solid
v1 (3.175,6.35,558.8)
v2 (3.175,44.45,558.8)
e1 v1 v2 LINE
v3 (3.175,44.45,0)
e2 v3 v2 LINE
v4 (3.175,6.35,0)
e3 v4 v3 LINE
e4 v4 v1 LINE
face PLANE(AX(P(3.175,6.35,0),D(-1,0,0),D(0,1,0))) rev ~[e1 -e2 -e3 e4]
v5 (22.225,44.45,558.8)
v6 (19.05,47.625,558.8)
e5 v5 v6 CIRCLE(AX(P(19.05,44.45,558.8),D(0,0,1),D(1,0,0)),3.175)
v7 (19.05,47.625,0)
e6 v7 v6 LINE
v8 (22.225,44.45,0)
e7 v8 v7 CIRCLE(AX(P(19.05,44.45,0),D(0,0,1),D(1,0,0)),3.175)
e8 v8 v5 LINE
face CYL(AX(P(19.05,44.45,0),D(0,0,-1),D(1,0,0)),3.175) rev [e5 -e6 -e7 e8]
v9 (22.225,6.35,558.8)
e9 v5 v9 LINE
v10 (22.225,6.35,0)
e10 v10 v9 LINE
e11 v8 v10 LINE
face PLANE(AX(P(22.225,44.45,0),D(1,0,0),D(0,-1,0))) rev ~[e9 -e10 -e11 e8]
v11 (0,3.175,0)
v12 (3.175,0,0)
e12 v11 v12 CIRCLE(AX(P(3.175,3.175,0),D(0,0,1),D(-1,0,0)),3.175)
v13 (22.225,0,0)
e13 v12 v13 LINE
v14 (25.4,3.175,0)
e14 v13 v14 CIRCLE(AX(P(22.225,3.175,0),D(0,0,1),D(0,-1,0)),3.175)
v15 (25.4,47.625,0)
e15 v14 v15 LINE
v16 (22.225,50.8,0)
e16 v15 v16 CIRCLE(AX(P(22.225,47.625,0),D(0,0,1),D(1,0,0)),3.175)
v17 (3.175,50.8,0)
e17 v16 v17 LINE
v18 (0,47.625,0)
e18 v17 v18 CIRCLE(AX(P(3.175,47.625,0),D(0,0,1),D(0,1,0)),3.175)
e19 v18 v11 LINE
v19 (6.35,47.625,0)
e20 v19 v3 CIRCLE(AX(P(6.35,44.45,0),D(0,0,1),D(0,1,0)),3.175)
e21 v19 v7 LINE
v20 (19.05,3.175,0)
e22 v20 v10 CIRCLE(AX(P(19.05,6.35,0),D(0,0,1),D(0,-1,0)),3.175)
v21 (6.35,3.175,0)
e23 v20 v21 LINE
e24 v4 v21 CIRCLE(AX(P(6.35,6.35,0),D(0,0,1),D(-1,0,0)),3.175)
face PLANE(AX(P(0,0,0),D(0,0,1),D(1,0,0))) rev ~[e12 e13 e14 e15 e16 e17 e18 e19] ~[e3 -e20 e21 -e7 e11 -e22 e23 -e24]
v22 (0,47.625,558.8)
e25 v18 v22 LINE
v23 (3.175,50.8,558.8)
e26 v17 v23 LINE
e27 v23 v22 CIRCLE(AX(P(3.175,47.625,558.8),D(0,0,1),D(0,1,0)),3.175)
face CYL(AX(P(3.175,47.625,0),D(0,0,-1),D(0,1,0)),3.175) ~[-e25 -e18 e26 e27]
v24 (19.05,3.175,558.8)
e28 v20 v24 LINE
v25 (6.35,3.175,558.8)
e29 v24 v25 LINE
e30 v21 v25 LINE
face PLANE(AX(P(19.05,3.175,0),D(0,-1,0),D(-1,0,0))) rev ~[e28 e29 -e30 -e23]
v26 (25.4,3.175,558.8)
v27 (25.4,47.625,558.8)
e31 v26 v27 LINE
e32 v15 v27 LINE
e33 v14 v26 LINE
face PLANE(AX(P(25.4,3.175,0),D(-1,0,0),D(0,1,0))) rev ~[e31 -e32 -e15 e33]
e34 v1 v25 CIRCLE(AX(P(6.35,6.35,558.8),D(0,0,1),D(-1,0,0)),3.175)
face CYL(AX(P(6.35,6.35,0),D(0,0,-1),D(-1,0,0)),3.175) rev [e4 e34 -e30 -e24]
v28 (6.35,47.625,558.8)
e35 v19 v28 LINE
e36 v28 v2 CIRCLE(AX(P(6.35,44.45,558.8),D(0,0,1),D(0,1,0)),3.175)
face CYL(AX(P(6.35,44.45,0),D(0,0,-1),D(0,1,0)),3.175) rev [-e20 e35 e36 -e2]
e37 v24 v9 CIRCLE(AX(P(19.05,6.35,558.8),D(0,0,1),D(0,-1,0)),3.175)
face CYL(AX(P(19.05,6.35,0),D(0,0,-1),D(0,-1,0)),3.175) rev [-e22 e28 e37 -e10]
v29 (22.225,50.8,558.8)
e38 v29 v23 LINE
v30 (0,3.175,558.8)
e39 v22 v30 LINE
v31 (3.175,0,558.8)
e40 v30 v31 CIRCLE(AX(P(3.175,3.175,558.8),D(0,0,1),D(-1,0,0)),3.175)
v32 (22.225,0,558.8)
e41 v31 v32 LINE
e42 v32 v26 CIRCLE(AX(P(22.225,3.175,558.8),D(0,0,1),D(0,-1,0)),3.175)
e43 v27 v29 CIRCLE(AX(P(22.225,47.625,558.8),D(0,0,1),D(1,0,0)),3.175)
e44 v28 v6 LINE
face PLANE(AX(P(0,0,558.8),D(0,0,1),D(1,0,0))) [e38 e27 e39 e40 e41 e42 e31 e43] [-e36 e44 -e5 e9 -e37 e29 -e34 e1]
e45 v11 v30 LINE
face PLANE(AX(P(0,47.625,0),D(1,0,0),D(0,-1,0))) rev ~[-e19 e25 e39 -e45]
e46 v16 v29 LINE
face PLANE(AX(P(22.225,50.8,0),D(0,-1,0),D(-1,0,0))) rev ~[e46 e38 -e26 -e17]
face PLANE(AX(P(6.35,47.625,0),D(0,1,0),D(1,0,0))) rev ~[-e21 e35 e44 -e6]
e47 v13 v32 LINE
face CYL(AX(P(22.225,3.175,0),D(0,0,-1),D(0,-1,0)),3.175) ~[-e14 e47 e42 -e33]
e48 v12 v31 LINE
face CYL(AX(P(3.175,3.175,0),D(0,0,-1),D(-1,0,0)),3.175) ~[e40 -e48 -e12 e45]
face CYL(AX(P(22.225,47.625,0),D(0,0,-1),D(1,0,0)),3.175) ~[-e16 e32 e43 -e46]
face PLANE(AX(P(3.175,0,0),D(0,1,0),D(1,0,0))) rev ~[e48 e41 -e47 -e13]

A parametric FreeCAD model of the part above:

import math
import FreeCAD as App
import Part
import Sketcher

V = App.Vector
Q = App.Units.Quantity

doc = App.newDocument("Part")
body = doc.addObject("PartDesign::Body", "Body")

sketch1 = doc.addObject("Sketcher::SketchObject", "Sketch")
body.addObject(sketch1)
sketch1.AttachmentSupport = (doc.XY_Plane, [""])
sketch1.MapMode = "FlatFace"
sketch1.addGeometry([
    Part.ArcOfCircle(Part.Circle(V(3.175, 3.175, 0), V(0, 0, 1), 3.175), math.radians(180), math.radians(270)),
    Part.LineSegment(V(3.175, 0, 0), V(22.225, 0, 0)),
    Part.ArcOfCircle(Part.Circle(V(22.225, 3.175, 0), V(0, 0, 1), 3.175), math.radians(-90), math.radians(0)),
    Part.LineSegment(V(25.4, 3.175, 0), V(25.4, 47.625, 0)),
    Part.ArcOfCircle(Part.Circle(V(22.225, 47.625, 0), V(0, 0, 1), 3.175), math.radians(0), math.radians(90)),
    Part.LineSegment(V(22.225, 50.8, 0), V(3.175, 50.8, 0)),
    Part.ArcOfCircle(Part.Circle(V(3.175, 47.625, 0), V(0, 0, 1), 3.175), math.radians(90), math.radians(180)),
    Part.LineSegment(V(0, 47.625, 0), V(0, 3.175, 0)),
    Part.ArcOfCircle(Part.Circle(V(6.35, 44.45, 0), V(0, 0, 1), 3.175), math.radians(90), math.radians(180)),
    Part.LineSegment(V(6.35, 47.625, 0), V(19.05, 47.625, 0)),
    Part.ArcOfCircle(Part.Circle(V(19.05, 44.45, 0), V(0, 0, 1), 3.175), math.radians(0), math.radians(90)),
    Part.LineSegment(V(22.225, 44.45, 0), V(22.225, 6.35, 0)),
    Part.ArcOfCircle(Part.Circle(V(19.05, 6.35, 0), V(0, 0, 1), 3.175), math.radians(-90), math.radians(0)),
    Part.LineSegment(V(19.05, 3.175, 0), V(6.35, 3.175, 0)),
    Part.ArcOfCircle(Part.Circle(V(6.35, 6.35, 0), V(0, 0, 1), 3.175), math.radians(180), math.radians(270)),
    Part.LineSegment(V(3.175, 6.35, 0), V(3.175, 44.45, 0)),
], False)
sketch1.addConstraint([
    Sketcher.Constraint("Tangent", 0, 2, 1, 1),
    Sketcher.Constraint("Tangent", 1, 2, 2, 1),
    Sketcher.Constraint("Tangent", 2, 2, 3, 1),
    Sketcher.Constraint("Tangent", 3, 2, 4, 1),
    Sketcher.Constraint("Tangent", 4, 2, 5, 1),
    Sketcher.Constraint("Tangent", 5, 2, 6, 1),
    Sketcher.Constraint("Tangent", 6, 2, 7, 1),
    Sketcher.Constraint("Tangent", 7, 2, 0, 1),
    Sketcher.Constraint("Tangent", 8, 1, 9, 1),
    Sketcher.Constraint("Tangent", 9, 2, 10, 2),
    Sketcher.Constraint("Tangent", 10, 1, 11, 1),
    Sketcher.Constraint("Tangent", 11, 2, 12, 2),
    Sketcher.Constraint("Tangent", 12, 1, 13, 1),
    Sketcher.Constraint("Tangent", 13, 2, 14, 2),
    Sketcher.Constraint("Tangent", 14, 1, 15, 1),
    Sketcher.Constraint("Tangent", 15, 2, 8, 2),
    Sketcher.Constraint("Horizontal", 1),
    Sketcher.Constraint("Vertical", 3),
    Sketcher.Constraint("Horizontal", 5),
    Sketcher.Constraint("Vertical", 7),
    Sketcher.Constraint("Horizontal", 9),
    Sketcher.Constraint("Vertical", 11),
    Sketcher.Constraint("Horizontal", 13),
    Sketcher.Constraint("Vertical", 15),
    Sketcher.Constraint("Equal", 0, 2),
    Sketcher.Constraint("Equal", 2, 4),
    Sketcher.Constraint("Equal", 4, 6),
    Sketcher.Constraint("Equal", 6, 8),
    Sketcher.Constraint("Equal", 8, 10),
    Sketcher.Constraint("Equal", 10, 12),
    Sketcher.Constraint("Equal", 12, 14),
    Sketcher.Constraint("PointOnObject", 0, 2, -1),
    Sketcher.Constraint("PointOnObject", 6, 2, -2),
    Sketcher.Constraint("Horizontal", 6, 2, 8, 1),
    Sketcher.Constraint("Horizontal", 7, 2, 12, 1),
    Sketcher.Constraint("Vertical", 4, 2, 10, 1),
    Sketcher.Constraint("Vertical", 5, 2, 14, 1),
    Sketcher.Constraint("DistanceX", -1, 1, 2, 2, Q("1 in")),
    Sketcher.Constraint("DistanceY", -1, 1, 4, 2, Q("2 in")),
    Sketcher.Constraint("Radius", 0, Q("0.125 in")),
])
pad1 = doc.addObject("PartDesign::Pad", "Pad")
body.addObject(pad1)
pad1.Profile = sketch1
pad1.Length = Q("22 in")

doc.recompute()
